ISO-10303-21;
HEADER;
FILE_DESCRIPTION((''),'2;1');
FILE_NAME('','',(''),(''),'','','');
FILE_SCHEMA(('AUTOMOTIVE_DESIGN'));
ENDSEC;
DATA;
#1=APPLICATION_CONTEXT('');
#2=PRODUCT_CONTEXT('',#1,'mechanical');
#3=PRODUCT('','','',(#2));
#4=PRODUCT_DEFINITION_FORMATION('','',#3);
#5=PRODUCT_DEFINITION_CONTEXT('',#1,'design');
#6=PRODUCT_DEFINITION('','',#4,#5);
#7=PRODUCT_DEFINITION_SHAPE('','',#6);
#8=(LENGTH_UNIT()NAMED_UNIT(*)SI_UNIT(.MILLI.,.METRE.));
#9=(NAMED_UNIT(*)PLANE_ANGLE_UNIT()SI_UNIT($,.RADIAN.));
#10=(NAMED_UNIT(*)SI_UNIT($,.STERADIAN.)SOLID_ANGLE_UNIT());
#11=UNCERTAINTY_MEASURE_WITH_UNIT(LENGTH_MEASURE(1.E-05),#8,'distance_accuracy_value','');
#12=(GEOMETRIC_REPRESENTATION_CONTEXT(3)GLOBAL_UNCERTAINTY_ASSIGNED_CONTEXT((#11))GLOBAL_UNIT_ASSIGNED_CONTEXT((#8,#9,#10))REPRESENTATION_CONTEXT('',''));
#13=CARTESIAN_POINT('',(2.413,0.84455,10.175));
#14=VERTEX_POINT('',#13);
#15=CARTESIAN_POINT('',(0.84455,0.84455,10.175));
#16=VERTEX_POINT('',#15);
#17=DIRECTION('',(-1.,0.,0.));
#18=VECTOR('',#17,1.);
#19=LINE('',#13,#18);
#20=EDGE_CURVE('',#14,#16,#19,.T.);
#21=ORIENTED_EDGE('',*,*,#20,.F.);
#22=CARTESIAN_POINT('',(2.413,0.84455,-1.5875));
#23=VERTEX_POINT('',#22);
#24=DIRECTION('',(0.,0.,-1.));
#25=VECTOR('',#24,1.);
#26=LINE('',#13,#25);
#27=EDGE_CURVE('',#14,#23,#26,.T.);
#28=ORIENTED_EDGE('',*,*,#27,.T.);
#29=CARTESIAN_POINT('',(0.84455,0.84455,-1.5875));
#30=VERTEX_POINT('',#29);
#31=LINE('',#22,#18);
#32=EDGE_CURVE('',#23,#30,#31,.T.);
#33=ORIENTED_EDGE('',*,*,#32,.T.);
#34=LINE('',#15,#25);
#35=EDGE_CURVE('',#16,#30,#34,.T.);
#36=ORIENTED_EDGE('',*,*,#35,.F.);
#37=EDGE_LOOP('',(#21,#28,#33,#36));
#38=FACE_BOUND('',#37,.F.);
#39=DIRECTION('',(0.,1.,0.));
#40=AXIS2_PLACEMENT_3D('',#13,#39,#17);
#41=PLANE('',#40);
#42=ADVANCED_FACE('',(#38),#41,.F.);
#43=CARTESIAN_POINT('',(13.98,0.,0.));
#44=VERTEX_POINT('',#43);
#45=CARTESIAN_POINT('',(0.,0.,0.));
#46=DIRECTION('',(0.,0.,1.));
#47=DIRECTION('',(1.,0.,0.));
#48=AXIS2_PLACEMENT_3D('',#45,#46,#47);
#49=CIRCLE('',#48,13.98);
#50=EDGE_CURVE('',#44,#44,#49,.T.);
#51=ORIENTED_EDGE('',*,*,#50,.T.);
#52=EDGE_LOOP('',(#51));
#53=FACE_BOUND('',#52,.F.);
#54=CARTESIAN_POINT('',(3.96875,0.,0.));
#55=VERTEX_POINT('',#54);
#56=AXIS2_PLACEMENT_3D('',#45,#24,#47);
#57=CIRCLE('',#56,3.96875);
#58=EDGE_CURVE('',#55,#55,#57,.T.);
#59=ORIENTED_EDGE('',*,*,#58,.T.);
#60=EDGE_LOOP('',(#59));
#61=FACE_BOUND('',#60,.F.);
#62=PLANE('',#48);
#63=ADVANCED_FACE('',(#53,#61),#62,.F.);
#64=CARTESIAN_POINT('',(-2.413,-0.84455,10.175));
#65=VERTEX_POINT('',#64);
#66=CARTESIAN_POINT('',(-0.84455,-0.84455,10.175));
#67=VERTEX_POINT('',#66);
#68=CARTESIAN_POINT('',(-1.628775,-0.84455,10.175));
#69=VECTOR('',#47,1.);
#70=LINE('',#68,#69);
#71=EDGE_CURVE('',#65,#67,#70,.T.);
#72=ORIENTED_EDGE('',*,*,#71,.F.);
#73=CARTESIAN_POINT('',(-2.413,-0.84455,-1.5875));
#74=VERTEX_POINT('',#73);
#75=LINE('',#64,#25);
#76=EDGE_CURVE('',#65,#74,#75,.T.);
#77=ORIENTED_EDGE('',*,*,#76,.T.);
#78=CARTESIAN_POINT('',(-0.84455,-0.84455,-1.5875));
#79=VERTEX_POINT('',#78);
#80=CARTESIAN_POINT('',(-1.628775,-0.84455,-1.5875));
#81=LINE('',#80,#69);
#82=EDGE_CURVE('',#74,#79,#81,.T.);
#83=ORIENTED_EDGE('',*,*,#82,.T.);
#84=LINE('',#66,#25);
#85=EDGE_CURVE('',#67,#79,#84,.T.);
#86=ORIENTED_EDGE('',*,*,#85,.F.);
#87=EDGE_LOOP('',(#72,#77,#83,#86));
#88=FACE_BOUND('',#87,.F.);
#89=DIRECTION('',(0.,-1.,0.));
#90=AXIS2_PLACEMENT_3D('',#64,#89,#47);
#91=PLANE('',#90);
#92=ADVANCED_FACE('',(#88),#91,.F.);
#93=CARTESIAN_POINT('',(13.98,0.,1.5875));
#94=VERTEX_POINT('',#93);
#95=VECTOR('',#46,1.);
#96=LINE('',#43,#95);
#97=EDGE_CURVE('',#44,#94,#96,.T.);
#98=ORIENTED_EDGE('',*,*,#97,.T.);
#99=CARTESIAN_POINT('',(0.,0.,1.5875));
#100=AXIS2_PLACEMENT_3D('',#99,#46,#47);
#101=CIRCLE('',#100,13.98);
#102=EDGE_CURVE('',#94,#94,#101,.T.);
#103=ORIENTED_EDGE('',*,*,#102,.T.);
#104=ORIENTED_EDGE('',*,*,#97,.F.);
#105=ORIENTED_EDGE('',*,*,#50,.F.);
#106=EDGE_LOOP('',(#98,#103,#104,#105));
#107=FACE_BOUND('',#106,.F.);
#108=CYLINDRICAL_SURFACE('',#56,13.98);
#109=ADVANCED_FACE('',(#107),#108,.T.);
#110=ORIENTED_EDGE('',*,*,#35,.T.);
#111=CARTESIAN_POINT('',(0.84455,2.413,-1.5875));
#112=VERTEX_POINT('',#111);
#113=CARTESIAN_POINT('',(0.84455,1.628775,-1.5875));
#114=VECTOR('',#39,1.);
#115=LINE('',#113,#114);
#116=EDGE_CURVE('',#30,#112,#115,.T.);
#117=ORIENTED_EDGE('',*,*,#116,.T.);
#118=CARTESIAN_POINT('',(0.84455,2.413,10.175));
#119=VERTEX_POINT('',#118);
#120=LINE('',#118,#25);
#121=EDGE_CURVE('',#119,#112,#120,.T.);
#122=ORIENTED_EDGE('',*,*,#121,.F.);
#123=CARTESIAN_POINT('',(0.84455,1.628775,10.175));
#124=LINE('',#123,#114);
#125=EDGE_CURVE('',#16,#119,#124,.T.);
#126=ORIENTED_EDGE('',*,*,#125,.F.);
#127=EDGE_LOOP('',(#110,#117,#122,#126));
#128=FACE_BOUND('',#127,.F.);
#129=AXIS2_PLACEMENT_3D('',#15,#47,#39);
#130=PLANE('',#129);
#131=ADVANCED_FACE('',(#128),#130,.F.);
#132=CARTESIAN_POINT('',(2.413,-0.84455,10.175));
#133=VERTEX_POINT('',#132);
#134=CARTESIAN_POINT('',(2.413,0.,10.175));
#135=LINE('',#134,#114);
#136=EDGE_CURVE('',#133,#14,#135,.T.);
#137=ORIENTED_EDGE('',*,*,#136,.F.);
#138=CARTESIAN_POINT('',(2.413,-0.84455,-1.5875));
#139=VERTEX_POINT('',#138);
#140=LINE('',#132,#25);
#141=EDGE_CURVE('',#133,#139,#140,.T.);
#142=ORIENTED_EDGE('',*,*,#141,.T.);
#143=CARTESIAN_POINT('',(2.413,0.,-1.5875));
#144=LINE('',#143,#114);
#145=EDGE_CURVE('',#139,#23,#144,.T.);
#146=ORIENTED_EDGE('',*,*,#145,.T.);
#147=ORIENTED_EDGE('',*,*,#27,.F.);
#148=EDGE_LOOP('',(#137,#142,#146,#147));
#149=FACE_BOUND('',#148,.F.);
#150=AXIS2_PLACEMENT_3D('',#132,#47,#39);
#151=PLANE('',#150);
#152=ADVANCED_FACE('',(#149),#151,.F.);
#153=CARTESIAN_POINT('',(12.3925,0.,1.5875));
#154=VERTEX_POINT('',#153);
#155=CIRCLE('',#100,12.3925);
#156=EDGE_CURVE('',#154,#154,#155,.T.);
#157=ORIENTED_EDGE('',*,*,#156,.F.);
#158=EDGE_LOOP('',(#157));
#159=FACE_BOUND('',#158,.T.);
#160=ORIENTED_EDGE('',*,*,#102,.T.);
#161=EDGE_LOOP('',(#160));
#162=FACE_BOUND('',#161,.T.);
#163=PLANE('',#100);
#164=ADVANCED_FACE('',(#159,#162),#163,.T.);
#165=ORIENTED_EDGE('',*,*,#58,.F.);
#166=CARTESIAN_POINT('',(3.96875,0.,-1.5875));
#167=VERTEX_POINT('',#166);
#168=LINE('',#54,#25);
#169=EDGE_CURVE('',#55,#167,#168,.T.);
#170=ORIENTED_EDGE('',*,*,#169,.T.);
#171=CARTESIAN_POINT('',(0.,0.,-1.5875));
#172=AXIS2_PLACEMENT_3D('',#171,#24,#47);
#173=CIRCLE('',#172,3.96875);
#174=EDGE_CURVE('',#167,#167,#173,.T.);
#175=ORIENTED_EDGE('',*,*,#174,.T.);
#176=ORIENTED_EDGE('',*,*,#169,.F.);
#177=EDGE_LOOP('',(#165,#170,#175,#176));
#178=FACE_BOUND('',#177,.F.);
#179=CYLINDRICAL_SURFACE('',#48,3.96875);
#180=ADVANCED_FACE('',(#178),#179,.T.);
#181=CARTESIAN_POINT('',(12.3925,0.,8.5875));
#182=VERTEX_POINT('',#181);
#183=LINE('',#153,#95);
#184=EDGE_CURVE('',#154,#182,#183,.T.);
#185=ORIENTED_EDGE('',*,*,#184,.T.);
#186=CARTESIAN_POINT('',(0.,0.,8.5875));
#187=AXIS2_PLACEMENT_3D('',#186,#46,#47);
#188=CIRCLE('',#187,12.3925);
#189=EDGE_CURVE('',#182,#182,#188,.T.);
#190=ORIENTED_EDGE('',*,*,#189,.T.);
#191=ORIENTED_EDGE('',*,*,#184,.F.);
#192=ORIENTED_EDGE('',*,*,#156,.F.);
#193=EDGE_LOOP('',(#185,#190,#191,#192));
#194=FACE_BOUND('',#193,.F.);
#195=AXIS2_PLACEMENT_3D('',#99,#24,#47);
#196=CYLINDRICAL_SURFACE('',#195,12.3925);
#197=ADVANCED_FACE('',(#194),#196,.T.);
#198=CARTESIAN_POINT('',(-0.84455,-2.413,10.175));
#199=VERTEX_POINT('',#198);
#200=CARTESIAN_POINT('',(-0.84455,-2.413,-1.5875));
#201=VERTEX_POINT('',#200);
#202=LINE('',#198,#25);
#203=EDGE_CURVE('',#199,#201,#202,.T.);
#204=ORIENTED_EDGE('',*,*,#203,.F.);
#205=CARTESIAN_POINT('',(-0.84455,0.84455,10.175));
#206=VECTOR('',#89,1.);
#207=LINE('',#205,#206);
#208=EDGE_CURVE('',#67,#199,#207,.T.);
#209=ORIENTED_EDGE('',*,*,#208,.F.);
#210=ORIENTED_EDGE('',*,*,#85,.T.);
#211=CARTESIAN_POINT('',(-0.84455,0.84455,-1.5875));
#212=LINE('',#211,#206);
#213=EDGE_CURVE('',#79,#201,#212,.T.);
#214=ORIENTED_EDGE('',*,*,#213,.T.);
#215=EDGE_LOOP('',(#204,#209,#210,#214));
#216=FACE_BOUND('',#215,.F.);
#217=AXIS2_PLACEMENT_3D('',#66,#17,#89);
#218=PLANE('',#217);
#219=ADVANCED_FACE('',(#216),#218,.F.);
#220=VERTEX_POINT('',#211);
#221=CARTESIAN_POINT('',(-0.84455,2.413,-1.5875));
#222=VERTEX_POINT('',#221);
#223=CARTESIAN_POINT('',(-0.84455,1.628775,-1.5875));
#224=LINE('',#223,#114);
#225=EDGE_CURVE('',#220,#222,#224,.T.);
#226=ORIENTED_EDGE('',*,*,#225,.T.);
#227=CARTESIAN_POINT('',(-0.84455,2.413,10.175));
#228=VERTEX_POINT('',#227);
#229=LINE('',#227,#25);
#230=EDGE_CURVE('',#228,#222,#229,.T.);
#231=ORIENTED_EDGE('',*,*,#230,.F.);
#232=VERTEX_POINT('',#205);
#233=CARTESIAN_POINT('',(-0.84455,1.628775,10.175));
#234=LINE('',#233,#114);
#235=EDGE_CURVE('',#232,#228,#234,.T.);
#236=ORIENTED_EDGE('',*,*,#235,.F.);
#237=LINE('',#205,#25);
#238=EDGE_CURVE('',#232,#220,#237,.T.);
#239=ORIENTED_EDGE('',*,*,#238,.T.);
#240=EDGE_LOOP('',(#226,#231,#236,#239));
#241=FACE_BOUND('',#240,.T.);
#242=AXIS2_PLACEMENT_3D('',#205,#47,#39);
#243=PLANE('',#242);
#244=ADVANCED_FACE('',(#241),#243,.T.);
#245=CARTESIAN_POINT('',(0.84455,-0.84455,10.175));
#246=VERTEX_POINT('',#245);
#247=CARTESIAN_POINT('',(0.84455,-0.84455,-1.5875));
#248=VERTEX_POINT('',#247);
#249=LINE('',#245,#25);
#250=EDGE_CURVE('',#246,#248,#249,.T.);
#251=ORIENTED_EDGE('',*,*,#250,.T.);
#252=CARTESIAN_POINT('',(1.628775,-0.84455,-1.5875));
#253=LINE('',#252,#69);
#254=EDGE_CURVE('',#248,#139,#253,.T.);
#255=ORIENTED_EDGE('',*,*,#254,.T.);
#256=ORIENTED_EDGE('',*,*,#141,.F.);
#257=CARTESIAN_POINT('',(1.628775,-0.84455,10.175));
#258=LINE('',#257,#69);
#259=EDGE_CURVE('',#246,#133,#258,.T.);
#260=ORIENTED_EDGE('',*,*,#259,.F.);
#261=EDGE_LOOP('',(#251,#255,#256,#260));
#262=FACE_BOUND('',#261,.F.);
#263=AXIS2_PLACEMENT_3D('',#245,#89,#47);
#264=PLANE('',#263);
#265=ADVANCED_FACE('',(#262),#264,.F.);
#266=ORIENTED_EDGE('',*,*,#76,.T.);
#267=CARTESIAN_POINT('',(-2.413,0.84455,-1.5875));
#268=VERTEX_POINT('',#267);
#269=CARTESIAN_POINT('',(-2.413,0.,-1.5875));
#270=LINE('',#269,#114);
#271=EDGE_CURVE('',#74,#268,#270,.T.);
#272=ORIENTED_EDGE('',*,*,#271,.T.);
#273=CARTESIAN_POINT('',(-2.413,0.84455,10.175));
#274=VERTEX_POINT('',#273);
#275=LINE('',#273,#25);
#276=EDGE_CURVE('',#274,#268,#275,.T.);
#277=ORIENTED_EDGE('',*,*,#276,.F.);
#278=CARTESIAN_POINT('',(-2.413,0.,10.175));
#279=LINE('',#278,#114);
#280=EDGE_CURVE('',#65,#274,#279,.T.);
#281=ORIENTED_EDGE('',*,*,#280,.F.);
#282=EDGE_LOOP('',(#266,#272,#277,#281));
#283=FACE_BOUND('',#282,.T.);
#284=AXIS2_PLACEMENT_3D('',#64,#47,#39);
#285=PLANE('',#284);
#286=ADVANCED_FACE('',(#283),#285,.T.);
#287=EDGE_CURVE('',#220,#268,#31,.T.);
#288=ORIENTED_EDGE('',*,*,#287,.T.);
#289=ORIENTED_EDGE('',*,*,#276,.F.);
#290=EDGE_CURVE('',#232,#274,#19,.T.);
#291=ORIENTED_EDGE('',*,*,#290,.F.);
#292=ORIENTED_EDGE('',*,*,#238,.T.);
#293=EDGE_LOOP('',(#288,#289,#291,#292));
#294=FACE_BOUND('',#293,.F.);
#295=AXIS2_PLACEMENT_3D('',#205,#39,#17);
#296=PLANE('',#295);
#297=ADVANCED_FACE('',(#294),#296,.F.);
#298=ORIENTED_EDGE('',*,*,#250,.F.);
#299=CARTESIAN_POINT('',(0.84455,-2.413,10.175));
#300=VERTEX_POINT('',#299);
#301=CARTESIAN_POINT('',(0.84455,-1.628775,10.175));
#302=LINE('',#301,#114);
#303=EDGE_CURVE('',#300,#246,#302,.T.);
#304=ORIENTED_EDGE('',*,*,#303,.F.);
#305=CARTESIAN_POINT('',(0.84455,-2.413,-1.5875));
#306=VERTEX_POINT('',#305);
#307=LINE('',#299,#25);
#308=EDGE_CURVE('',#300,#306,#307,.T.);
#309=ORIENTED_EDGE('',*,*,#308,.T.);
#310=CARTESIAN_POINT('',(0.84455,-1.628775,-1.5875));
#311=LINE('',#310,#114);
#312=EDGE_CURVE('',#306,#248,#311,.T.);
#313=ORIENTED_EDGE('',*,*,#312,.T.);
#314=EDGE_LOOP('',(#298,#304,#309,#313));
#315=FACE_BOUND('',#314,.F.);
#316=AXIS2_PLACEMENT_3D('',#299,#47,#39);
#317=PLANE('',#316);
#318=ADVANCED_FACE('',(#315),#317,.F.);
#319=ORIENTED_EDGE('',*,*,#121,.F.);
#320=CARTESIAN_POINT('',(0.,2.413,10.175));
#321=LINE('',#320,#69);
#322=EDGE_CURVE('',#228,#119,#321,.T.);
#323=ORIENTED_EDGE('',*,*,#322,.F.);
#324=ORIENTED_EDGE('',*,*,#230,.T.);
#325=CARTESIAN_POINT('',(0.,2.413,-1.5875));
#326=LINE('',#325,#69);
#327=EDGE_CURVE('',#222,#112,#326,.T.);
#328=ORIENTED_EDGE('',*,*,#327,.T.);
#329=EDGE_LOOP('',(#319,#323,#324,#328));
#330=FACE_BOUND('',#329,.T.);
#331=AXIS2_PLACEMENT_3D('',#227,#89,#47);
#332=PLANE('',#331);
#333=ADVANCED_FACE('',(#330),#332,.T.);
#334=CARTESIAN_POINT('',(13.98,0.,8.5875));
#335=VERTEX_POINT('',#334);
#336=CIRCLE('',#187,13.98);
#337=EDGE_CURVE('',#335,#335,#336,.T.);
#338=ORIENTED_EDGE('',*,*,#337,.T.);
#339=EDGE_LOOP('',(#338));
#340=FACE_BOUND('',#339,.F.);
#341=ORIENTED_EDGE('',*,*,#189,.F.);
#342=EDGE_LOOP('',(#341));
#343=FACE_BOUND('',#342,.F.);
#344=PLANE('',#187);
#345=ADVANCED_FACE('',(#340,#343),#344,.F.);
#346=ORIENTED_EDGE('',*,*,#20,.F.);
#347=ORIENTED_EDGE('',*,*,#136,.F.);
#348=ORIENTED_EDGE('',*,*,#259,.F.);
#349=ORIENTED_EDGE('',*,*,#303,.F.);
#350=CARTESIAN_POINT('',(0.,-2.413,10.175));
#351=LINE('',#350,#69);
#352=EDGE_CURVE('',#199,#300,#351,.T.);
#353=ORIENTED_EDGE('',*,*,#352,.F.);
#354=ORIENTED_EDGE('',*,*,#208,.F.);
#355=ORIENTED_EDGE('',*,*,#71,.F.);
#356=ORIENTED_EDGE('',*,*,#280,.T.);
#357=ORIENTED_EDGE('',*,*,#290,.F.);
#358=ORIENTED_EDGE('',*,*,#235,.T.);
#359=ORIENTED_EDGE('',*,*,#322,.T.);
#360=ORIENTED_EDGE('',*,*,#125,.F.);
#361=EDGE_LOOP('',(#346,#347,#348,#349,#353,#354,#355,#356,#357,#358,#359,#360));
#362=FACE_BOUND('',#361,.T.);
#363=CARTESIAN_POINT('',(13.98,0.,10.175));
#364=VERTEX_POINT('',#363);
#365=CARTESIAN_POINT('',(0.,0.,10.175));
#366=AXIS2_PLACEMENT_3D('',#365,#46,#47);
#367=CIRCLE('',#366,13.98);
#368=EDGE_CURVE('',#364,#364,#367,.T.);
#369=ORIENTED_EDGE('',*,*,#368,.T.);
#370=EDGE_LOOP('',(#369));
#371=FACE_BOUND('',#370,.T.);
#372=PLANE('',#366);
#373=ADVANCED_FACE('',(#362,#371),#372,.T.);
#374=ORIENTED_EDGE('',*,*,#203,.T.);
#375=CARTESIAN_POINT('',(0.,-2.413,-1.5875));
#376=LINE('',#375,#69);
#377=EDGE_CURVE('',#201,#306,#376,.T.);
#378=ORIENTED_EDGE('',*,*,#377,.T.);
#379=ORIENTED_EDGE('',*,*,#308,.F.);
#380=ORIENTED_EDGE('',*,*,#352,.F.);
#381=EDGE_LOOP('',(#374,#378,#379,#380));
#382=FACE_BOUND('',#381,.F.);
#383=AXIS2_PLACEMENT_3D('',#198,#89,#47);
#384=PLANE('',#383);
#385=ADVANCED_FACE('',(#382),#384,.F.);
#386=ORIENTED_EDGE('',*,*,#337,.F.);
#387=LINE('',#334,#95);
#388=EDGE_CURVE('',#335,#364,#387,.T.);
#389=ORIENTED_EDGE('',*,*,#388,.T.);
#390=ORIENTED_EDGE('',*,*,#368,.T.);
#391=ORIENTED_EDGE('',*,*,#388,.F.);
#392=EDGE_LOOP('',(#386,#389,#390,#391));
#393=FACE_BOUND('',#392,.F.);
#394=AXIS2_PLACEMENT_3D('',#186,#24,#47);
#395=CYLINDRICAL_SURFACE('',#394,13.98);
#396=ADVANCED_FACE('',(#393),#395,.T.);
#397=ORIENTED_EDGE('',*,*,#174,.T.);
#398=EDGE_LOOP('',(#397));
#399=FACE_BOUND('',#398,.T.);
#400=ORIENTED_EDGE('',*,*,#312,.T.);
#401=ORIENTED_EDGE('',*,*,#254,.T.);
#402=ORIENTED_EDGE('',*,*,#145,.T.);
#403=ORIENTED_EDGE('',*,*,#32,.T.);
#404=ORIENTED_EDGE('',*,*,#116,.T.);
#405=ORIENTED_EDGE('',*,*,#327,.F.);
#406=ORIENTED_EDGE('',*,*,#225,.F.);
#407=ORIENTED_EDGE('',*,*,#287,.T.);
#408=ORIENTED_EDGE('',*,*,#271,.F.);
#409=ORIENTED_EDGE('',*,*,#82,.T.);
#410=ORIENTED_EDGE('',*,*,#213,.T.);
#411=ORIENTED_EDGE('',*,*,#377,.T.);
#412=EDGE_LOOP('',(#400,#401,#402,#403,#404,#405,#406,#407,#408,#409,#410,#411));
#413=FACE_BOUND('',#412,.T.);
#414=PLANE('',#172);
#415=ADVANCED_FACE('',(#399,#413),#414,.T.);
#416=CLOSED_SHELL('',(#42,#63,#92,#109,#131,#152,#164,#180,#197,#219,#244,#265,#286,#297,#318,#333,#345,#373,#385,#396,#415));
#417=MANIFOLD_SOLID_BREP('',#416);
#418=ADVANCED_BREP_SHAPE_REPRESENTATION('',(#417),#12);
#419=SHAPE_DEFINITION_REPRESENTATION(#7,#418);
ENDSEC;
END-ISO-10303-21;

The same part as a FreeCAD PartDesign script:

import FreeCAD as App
import Part
import Sketcher

V = App.Vector
Q = App.Units.Quantity

doc = App.newDocument("Part")
body = doc.addObject("PartDesign::Body", "Body")

# Sketch on XY plane
sketch1 = doc.addObject("Sketcher::SketchObject", "Sketch")
body.addObject(sketch1)
sketch1.AttachmentSupport = (doc.XY_Plane, [""])
sketch1.MapMode = "FlatFace"
sketch1.addGeometry(Part.Circle(V(0, 0, 0), V(0, 0, 1), 13.98), False)
sketch1.addConstraint([
    Sketcher.Constraint("Coincident", 0, 3, -1, 1),
    Sketcher.Constraint("Diameter", 0, Q("27.96 mm")),
])
pad1 = doc.addObject("PartDesign::Pad", "Pad")
body.addObject(pad1)
pad1.Profile = sketch1
pad1.Length = Q("0.0625 in")

# Sketch on XY plane
sketch2 = doc.addObject("Sketcher::SketchObject", "Sketch001")
body.addObject(sketch2)
sketch2.AttachmentSupport = (doc.XY_Plane, [""])
sketch2.MapMode = "FlatFace"
sketch2.AttachmentOffset = App.Placement(V(0, 0, 0.0625 * 25.4), App.Rotation())
sketch2.addGeometry(Part.Circle(V(0, 0, 0), V(0, 0, 1), 12.3925), False)
sketch2.addConstraint([
    Sketcher.Constraint("Coincident", 0, 3, -1, 1),
    Sketcher.Constraint("Diameter", 0, Q("24.785 mm")),
])
pad2 = doc.addObject("PartDesign::Pad", "Pad001")
body.addObject(pad2)
pad2.Profile = sketch2
pad2.Length = 7

# Sketch on XY plane
sketch3 = doc.addObject("Sketcher::SketchObject", "Sketch002")
body.addObject(sketch3)
sketch3.AttachmentSupport = (doc.XY_Plane, [""])
sketch3.MapMode = "FlatFace"
sketch3.AttachmentOffset = App.Placement(V(0, 0, 8.5875), App.Rotation())
sketch3.addGeometry(Part.Circle(V(0, 0, 0), V(0, 0, 1), 13.98), False)
sketch3.addConstraint([
    Sketcher.Constraint("Coincident", 0, 3, -1, 1),
    Sketcher.Constraint("Diameter", 0, Q("27.96 mm")),
])
pad3 = doc.addObject("PartDesign::Pad", "Pad002")
body.addObject(pad3)
pad3.Profile = sketch3
pad3.Length = Q("0.0625 in")

# Sketch on XY plane
sketch4 = doc.addObject("Sketcher::SketchObject", "Sketch003")
body.addObject(sketch4)
sketch4.AttachmentSupport = (doc.XY_Plane, [""])
sketch4.MapMode = "FlatFace"
sketch4.addGeometry(Part.Circle(V(0, 0, 0), V(0, 0, 1), 3.96875), False)
sketch4.addConstraint([
    Sketcher.Constraint("Coincident", 0, 3, -1, 1),
    Sketcher.Constraint("Diameter", 0, Q("0.3125 in")),
])
pad4 = doc.addObject("PartDesign::Pad", "Pad003")
body.addObject(pad4)
pad4.Profile = sketch4
pad4.Length = Q("0.0625 in")
pad4.Reversed = True

# Sketch on XY plane
sketch5 = doc.addObject("Sketcher::SketchObject", "Sketch004")
body.addObject(sketch5)
sketch5.AttachmentSupport = (doc.XY_Plane, [""])
sketch5.MapMode = "FlatFace"
sketch5.AttachmentOffset = App.Placement(V(0, 0, 10.175), App.Rotation())
sketch5.addGeometry([
    Part.LineSegment(V(0.84455, -0.84455, 0), V(2.413, -0.84455, 0)),  # 0
    Part.LineSegment(V(2.413, -0.84455, 0), V(2.413, 0.84455, 0)),  # 1
    Part.LineSegment(V(2.413, 0.84455, 0), V(0.84455, 0.84455, 0)),  # 2
    Part.LineSegment(V(0.84455, 0.84455, 0), V(0.84455, 2.413, 0)),  # 3
    Part.LineSegment(V(0.84455, 2.413, 0), V(-0.84455, 2.413, 0)),  # 4
    Part.LineSegment(V(-0.84455, 2.413, 0), V(-0.84455, 0.84455, 0)),  # 5
    Part.LineSegment(V(-0.84455, 0.84455, 0), V(-2.413, 0.84455, 0)),  # 6
    Part.LineSegment(V(-2.413, 0.84455, 0), V(-2.413, -0.84455, 0)),  # 7
    Part.LineSegment(V(-2.413, -0.84455, 0), V(-0.84455, -0.84455, 0)),  # 8
    Part.LineSegment(V(-0.84455, -0.84455, 0), V(-0.84455, -2.413, 0)),  # 9
    Part.LineSegment(V(-0.84455, -2.413, 0), V(0.84455, -2.413, 0)),  # 10
    Part.LineSegment(V(0.84455, -2.413, 0), V(0.84455, -0.84455, 0)),  # 11
], False)
sketch5.addConstraint([
    Sketcher.Constraint("Coincident", 0, 2, 1, 1),
    Sketcher.Constraint("Coincident", 1, 2, 2, 1),
    Sketcher.Constraint("Coincident", 2, 2, 3, 1),
    Sketcher.Constraint("Coincident", 3, 2, 4, 1),
    Sketcher.Constraint("Coincident", 4, 2, 5, 1),
    Sketcher.Constraint("Coincident", 5, 2, 6, 1),
    Sketcher.Constraint("Coincident", 6, 2, 7, 1),
    Sketcher.Constraint("Coincident", 7, 2, 8, 1),
    Sketcher.Constraint("Coincident", 8, 2, 9, 1),
    Sketcher.Constraint("Coincident", 9, 2, 10, 1),
    Sketcher.Constraint("Coincident", 10, 2, 11, 1),
    Sketcher.Constraint("Coincident", 11, 2, 0, 1),
    Sketcher.Constraint("Horizontal", 0),
    Sketcher.Constraint("Vertical", 1),
    Sketcher.Constraint("Horizontal", 2),
    Sketcher.Constraint("Vertical", 3),
    Sketcher.Constraint("Horizontal", 4),
    Sketcher.Constraint("Vertical", 5),
    Sketcher.Constraint("Horizontal", 6),
    Sketcher.Constraint("Vertical", 7),
    Sketcher.Constraint("Horizontal", 8),
    Sketcher.Constraint("Vertical", 9),
    Sketcher.Constraint("Horizontal", 10),
    Sketcher.Constraint("Vertical", 11),
    Sketcher.Constraint("Symmetric", 0, 2, 6, 2, -1, 1),
    Sketcher.Constraint("Symmetric", 2, 2, 8, 2, -1, 1),
    Sketcher.Constraint("Symmetric", 4, 2, 10, 2, -1, 1),
    Sketcher.Constraint("Symmetric", 2, 2, 5, 2, -2),
    Sketcher.Constraint("Equal", 10, 1),
    Sketcher.Constraint("Equal", 8, 3),
    Sketcher.Constraint("DistanceX", 6, 2, 1, 2, Q("0.19 in")),
    Sketcher.Constraint("DistanceX", 4, 2, 4, 1, Q("0.0665 in")),
])
pocket1 = doc.addObject("PartDesign::Pocket", "Pocket")
body.addObject(pocket1)
pocket1.Profile = sketch5
pocket1.Type = "ThroughAll"

doc.recompute()
